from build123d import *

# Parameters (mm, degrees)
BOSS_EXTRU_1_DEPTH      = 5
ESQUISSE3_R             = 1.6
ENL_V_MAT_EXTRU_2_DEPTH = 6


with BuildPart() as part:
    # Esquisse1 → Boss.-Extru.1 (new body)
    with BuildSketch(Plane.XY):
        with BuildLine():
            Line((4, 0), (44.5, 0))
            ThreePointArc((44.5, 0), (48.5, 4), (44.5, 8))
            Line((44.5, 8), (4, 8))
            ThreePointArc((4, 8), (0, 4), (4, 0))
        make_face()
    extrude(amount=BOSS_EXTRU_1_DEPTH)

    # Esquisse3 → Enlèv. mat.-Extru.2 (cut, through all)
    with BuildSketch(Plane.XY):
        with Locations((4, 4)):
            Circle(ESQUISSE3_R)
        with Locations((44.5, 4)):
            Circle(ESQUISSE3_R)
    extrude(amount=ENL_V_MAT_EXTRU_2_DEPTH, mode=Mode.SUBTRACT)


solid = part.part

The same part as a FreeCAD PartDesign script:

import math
import FreeCAD as App
import Part
import Sketcher

doc = App.newDocument("Part")
body = doc.addObject("PartDesign::Body", "Body")

# Sketch on XY plane
sketch1 = body.newObject("Sketcher::SketchObject", "Sketch")
sketch1.AttachmentSupport = (doc.getObject("XY_Plane"), [""])
sketch1.MapMode = "FlatFace"
sketch1.addGeometry(Part.LineSegment(App.Vector(4, 0, 0), App.Vector(44.5, 0, 0)), False)
sketch1.addGeometry(Part.ArcOfCircle(Part.Circle(App.Vector(44.5, 4, 0), App.Vector(0, 0, 1), 4), math.radians(-90), math.radians(90)), False)
sketch1.addGeometry(Part.LineSegment(App.Vector(44.5, 8, 0), App.Vector(4, 8, 0)), False)
sketch1.addGeometry(Part.ArcOfCircle(Part.Circle(App.Vector(4, 4, 0), App.Vector(0, 0, 1), 4), math.radians(90), math.radians(270)), False)
sketch1.addConstraint(Sketcher.Constraint("Tangent", 0, 2, 1, 1))
sketch1.addConstraint(Sketcher.Constraint("Tangent", 1, 2, 2, 1))
sketch1.addConstraint(Sketcher.Constraint("Tangent", 2, 2, 3, 1))
sketch1.addConstraint(Sketcher.Constraint("Tangent", 3, 2, 0, 1))
sketch1.addConstraint(Sketcher.Constraint("Horizontal", 0))
sketch1.addConstraint(Sketcher.Constraint("Horizontal", 2))
sketch1.addConstraint(Sketcher.Constraint("PointOnObject", 0, 2, -1))
sketch1.addConstraint(Sketcher.Constraint("Radius", 1, 4.0))
sketch1.addConstraint(Sketcher.Constraint("DistanceX", 0, 1, 0, 2, 40.5))
sketch1.addConstraint(Sketcher.Constraint("DistanceX", -1, 1, 3, 3, 4.0))
pad1 = body.newObject("PartDesign::Pad", "Pad")
pad1.Profile = sketch1
pad1.Length = 5

# Sketch on XY plane
sketch2 = body.newObject("Sketcher::SketchObject", "Sketch001")
sketch2.AttachmentSupport = (doc.getObject("XY_Plane"), [""])
sketch2.MapMode = "FlatFace"
sketch2.addGeometry(Part.Circle(App.Vector(4, 4, 0), App.Vector(0, 0, 1), 1.6), False)
sketch2.addGeometry(Part.Circle(App.Vector(44.5, 4, 0), App.Vector(0, 0, 1), 1.6), False)
sketch2.addConstraint(Sketcher.Constraint("Equal", 0, 1))
sketch2.addConstraint(Sketcher.Constraint("Horizontal", 0, 3, 1, 3))
sketch2.addConstraint(Sketcher.Constraint("Diameter", 0, 3.2))
sketch2.addConstraint(Sketcher.Constraint("DistanceX", -1, 1, 0, 3, 4.0))
sketch2.addConstraint(Sketcher.Constraint("DistanceY", -1, 1, 0, 3, 4.0))
sketch2.addConstraint(Sketcher.Constraint("DistanceX", -1, 1, 1, 3, 44.5))
pocket1 = body.newObject("PartDesign::Pocket", "Pocket")
pocket1.Profile = sketch2
pocket1.Type = "ThroughAll"
pocket1.Reversed = True

doc.recompute()
